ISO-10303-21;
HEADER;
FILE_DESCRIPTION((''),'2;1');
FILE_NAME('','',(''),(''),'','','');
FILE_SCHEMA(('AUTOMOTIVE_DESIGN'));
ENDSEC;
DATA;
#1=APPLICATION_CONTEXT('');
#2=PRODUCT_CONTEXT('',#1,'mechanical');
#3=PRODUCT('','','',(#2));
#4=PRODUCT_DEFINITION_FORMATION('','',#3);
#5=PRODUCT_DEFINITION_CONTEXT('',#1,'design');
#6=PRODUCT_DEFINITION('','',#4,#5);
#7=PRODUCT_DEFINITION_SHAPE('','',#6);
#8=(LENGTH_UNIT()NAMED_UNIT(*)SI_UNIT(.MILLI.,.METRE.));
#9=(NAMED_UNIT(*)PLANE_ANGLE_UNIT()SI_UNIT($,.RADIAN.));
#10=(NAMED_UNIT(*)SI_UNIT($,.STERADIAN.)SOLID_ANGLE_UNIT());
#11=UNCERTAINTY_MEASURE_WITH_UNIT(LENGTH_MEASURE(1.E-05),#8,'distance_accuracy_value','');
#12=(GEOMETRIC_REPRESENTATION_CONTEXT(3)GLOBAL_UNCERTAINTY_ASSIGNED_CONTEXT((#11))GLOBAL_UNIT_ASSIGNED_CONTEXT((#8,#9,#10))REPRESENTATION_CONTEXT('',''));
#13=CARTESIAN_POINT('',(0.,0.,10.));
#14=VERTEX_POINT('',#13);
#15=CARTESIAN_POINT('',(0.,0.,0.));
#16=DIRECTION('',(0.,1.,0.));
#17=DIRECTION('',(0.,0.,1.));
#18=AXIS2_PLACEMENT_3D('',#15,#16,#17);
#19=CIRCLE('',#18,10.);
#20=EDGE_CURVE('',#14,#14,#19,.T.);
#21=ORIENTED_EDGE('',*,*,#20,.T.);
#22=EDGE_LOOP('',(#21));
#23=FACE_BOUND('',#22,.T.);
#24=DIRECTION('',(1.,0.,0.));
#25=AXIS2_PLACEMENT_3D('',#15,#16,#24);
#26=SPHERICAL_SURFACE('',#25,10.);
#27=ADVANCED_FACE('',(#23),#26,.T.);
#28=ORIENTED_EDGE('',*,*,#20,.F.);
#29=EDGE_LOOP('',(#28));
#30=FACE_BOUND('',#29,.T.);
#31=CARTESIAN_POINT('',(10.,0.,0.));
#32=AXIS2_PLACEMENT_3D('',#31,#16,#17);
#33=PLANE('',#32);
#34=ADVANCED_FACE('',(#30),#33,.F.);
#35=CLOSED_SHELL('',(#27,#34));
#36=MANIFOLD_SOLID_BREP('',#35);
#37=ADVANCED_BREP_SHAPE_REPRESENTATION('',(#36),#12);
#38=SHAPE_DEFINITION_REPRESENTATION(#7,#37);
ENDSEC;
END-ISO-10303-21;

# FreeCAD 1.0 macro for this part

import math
import FreeCAD as App
import Part
import Sketcher

doc = App.newDocument("Part")
body = doc.addObject("PartDesign::Body", "Body")

sketch1 = doc.addObject("Sketcher::SketchObject", "Sketch")
body.addObject(sketch1)
sketch1.AttachmentSupport = (doc.XY_Plane, [""])
sketch1.MapMode = "FlatFace"
sketch1.addGeometry([
    Part.LineSegment(App.Vector(0, 10, 0), App.Vector(0, 0, 0)),
    Part.LineSegment(App.Vector(0, 0, 0), App.Vector(10, 0, 0)),
    Part.ArcOfCircle(Part.Circle(App.Vector(0, 0, 0), App.Vector(0, 0, 1), 10), math.radians(0), math.radians(90)),
], False)
sketch1.addConstraint([
    Sketcher.Constraint("Coincident", 0, 2, 1, 1),
    Sketcher.Constraint("Coincident", 1, 2, 2, 1),
    Sketcher.Constraint("Coincident", 2, 2, 0, 1),
    Sketcher.Constraint("Vertical", 0),
    Sketcher.Constraint("Horizontal", 1),
    Sketcher.Constraint("Coincident", 2, 3, -1, 1),
    Sketcher.Constraint("Coincident", 0, 2, -1, 1),
    Sketcher.Constraint("Radius", 2, 10.0),
])
revolution = doc.addObject("PartDesign::Revolution", "Revolution")
body.addObject(revolution)
revolution.Profile = sketch1
revolution.ReferenceAxis = (sketch1, ["V_Axis"])
revolution.Angle = 360

doc.recompute()
